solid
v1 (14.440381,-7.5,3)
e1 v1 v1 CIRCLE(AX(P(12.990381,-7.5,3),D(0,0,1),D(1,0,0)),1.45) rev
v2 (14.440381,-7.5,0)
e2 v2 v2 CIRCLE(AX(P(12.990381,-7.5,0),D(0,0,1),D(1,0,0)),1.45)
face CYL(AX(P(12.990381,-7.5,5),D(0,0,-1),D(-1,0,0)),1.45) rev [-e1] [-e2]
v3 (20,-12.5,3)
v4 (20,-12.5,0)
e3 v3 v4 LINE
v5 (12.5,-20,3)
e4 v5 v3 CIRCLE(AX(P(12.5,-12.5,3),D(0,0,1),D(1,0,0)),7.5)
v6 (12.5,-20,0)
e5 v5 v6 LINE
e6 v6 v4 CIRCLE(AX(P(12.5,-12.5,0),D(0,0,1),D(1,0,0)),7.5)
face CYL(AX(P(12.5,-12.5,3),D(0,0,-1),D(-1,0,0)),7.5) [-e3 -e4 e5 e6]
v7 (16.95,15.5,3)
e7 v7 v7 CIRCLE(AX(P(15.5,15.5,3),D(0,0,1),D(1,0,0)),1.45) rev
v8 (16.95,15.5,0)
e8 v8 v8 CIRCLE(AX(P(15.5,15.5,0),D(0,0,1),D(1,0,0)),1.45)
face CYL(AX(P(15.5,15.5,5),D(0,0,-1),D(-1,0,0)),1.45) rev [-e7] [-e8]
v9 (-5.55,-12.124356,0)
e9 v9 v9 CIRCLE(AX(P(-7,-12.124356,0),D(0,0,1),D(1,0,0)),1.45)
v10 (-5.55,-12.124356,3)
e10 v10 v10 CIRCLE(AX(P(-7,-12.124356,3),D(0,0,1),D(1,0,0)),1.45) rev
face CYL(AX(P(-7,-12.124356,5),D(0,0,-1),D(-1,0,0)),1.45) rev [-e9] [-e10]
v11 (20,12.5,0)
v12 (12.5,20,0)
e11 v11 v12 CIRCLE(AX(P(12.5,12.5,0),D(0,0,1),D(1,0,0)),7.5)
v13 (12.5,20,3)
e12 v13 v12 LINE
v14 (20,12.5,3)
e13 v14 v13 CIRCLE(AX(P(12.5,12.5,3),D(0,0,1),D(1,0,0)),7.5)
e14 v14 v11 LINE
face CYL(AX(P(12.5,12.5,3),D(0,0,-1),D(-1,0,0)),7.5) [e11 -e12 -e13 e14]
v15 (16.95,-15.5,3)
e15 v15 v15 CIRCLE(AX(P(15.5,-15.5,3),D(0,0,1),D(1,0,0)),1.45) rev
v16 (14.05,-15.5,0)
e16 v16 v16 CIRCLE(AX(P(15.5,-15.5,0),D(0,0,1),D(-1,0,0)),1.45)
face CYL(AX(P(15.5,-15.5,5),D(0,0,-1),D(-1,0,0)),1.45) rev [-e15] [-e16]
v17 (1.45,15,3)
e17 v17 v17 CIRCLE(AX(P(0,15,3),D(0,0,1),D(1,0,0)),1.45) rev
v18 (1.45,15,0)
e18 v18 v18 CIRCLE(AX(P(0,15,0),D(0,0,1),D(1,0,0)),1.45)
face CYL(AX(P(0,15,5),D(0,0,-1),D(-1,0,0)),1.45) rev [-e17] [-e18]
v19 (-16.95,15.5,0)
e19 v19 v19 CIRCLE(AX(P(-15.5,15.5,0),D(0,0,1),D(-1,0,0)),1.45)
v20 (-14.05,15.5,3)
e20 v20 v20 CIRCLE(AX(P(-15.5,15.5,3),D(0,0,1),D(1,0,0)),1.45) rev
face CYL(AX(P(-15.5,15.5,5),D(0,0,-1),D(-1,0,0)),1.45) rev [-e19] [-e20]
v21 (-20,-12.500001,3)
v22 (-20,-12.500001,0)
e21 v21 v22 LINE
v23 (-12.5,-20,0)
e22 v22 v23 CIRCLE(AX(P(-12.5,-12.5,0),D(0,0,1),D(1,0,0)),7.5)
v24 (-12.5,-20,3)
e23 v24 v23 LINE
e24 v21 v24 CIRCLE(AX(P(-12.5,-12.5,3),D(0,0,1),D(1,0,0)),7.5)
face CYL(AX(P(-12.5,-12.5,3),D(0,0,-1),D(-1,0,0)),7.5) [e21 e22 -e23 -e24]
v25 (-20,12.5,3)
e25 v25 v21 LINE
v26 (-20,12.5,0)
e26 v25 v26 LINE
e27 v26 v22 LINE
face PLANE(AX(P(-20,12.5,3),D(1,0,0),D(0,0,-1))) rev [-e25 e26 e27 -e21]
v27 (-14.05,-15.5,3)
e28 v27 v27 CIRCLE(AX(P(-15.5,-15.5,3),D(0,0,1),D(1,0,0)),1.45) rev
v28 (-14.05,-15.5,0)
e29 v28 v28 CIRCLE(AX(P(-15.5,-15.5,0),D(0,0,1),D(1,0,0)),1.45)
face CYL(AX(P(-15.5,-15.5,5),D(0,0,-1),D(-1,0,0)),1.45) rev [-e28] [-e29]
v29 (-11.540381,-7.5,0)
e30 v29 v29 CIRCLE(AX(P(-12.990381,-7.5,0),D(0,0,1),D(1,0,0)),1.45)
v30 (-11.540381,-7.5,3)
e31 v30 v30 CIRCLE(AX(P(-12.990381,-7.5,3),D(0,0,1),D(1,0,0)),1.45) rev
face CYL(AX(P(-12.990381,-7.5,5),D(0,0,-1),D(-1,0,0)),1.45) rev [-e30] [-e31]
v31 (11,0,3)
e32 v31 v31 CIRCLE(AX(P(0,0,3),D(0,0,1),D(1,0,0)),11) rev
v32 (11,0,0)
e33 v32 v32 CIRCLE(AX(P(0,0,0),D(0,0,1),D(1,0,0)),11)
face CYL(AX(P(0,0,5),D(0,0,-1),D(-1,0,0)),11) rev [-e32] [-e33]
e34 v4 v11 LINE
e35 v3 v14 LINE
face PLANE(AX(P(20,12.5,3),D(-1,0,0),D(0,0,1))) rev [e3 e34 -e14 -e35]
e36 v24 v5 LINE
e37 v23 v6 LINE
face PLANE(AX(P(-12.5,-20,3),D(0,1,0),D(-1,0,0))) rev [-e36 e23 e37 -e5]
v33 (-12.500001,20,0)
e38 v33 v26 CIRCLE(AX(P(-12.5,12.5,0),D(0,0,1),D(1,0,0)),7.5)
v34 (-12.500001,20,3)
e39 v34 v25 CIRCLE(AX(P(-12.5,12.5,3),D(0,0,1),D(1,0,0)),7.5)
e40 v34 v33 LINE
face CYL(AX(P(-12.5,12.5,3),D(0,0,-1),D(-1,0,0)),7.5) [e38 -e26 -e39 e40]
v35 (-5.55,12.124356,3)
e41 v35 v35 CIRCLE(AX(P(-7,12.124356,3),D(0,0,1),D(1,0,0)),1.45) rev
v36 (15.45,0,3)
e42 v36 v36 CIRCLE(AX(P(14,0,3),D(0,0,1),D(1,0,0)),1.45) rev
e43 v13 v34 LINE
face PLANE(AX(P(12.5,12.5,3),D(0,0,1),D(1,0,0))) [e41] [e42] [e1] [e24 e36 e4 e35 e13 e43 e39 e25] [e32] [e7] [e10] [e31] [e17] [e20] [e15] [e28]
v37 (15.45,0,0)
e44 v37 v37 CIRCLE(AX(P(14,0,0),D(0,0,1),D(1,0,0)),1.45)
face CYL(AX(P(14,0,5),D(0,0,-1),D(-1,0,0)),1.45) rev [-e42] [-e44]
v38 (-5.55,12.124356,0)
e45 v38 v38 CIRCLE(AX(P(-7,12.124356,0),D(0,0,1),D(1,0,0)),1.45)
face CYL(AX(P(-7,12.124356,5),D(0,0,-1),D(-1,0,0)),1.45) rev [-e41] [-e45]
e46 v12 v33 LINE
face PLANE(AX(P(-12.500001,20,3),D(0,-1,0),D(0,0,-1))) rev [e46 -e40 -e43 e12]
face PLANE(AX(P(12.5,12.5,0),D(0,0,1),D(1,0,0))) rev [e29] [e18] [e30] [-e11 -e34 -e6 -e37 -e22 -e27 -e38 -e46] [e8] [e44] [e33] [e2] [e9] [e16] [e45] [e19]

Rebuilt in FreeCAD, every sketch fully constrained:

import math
import FreeCAD as App
import Part
import Sketcher

doc = App.newDocument("Part")
body = doc.addObject("PartDesign::Body", "Body")

sketch1 = body.newObject("Sketcher::SketchObject", "Sketch")
sketch1.AttachmentSupport = (doc.getObject("XY_Plane"), [""])
sketch1.MapMode = "FlatFace"
sketch1.addGeometry([
    Part.LineSegment(App.Vector(12, 20, 0), App.Vector(-13, 20, 0)),
    Part.ArcOfCircle(Part.Circle(App.Vector(-12, 12, 0), App.Vector(0, 0, 1), 8), math.radians(90), math.radians(180)),
    Part.LineSegment(App.Vector(-20, 12, 0), App.Vector(-20, -13, 0)),
    Part.ArcOfCircle(Part.Circle(App.Vector(-12, -12, 0), App.Vector(0, 0, 1), 8), math.radians(-180), math.radians(-90)),
    Part.LineSegment(App.Vector(-12, -20, 0), App.Vector(12, -20, 0)),
    Part.ArcOfCircle(Part.Circle(App.Vector(12, -12, 0), App.Vector(0, 0, 1), 8), math.radians(-90), math.radians(0)),
    Part.LineSegment(App.Vector(20, -12, 0), App.Vector(20, 12, 0)),
    Part.ArcOfCircle(Part.Circle(App.Vector(12, 12, 0), App.Vector(0, 0, 1), 8), math.radians(0), math.radians(90)),
], False)
sketch1.addConstraint([
    Sketcher.Constraint("Tangent", 0, 2, 1, 1),
    Sketcher.Constraint("Tangent", 1, 2, 2, 1),
    Sketcher.Constraint("Tangent", 2, 2, 3, 1),
    Sketcher.Constraint("Tangent", 3, 2, 4, 1),
    Sketcher.Constraint("Tangent", 4, 2, 5, 1),
    Sketcher.Constraint("Tangent", 5, 2, 6, 1),
    Sketcher.Constraint("Tangent", 6, 2, 7, 1),
    Sketcher.Constraint("Tangent", 7, 2, 0, 1),
    Sketcher.Constraint("Horizontal", 0),
    Sketcher.Constraint("Vertical", 2),
    Sketcher.Constraint("Horizontal", 4),
    Sketcher.Constraint("Vertical", 6),
    Sketcher.Constraint("Equal", 1, 3),
    Sketcher.Constraint("Equal", 3, 5),
    Sketcher.Constraint("Equal", 5, 7),
    Sketcher.Constraint("Symmetric", 1, 3, 5, 3, -1, 1),
    Sketcher.Constraint("Equal", 4, 2),
    Sketcher.Constraint("Radius", 1, 7.5),
    Sketcher.Constraint("DistanceX", 0, 2, 0, 1, 25.000001),
])
pad1 = body.newObject("PartDesign::Pad", "Pad")
pad1.Profile = sketch1
pad1.Length = 3

sketch2 = body.newObject("Sketcher::SketchObject", "Sketch001")
sketch2.AttachmentSupport = (doc.getObject("XY_Plane"), [""])
sketch2.MapMode = "FlatFace"
sketch2.addGeometry([
    Part.Circle(App.Vector(15.5, 15.5, 0), App.Vector(0, 0, 1), 1.4),
    Part.Circle(App.Vector(-15.5, 15.5, 0), App.Vector(0, 0, 1), 1.4),
    Part.Circle(App.Vector(15.5, -15.5, 0), App.Vector(0, 0, 1), 1.4),
    Part.Circle(App.Vector(-15.5, -15.5, 0), App.Vector(0, 0, 1), 1.4),
    Part.Circle(App.Vector(0, 15, 0), App.Vector(0, 0, 1), 1.4),
    Part.Circle(App.Vector(14, 0, 0), App.Vector(0, 0, 1), 1.4),
    Part.Circle(App.Vector(-7, -12.1, 0), App.Vector(0, 0, 1), 1.4),
    Part.Circle(App.Vector(-13, -7.5, 0), App.Vector(0, 0, 1), 1.4),
    Part.Circle(App.Vector(13, -7.5, 0), App.Vector(0, 0, 1), 1.4),
    Part.Circle(App.Vector(-7, 12.1, 0), App.Vector(0, 0, 1), 1.4),
    Part.Circle(App.Vector(0, 0, 0), App.Vector(0, 0, 1), 11),
], False)
sketch2.addConstraint([
    Sketcher.Constraint("Coincident", 10, 3, -1, 1),
    Sketcher.Constraint("Equal", 0, 1),
    Sketcher.Constraint("Equal", 1, 2),
    Sketcher.Constraint("Equal", 2, 3),
    Sketcher.Constraint("Equal", 3, 4),
    Sketcher.Constraint("Equal", 4, 5),
    Sketcher.Constraint("Equal", 5, 6),
    Sketcher.Constraint("Equal", 6, 7),
    Sketcher.Constraint("Equal", 7, 8),
    Sketcher.Constraint("Equal", 8, 9),
    Sketcher.Constraint("Symmetric", 1, 3, 2, 3, -1, 1),
    Sketcher.Constraint("Symmetric", 0, 3, 3, 3, -1, 1),
    Sketcher.Constraint("Symmetric", 0, 3, 1, 3, -2),
    Sketcher.Constraint("Symmetric", 7, 3, 8, 3, -2),
    Sketcher.Constraint("Symmetric", 6, 3, 9, 3, -1),
    Sketcher.Constraint("PointOnObject", 4, 3, -2),
    Sketcher.Constraint("PointOnObject", 5, 3, -1),
    Sketcher.Constraint("Diameter", 10, 22.0),
    Sketcher.Constraint("Diameter", 0, 2.9),
    Sketcher.Constraint("DistanceY", -1, 1, 4, 3, 15.0),
    Sketcher.Constraint("DistanceX", -1, 1, 5, 3, 14.0),
    Sketcher.Constraint("DistanceX", 6, 3, -1, 1, 7.0),
    Sketcher.Constraint("DistanceX", 1, 3, 0, 3, 31.0),
    Sketcher.Constraint("DistanceY", 2, 3, 0, 3, 31.0),
    Sketcher.Constraint("DistanceY", 3, 3, 7, 3, 8.0),
    Sketcher.Constraint("DistanceX", 7, 3, -1, 1, 12.990381),
    Sketcher.Constraint("DistanceY", 6, 3, -1, 1, 12.124356),
])
pocket1 = body.newObject("PartDesign::Pocket", "Pocket")
pocket1.Profile = sketch2
pocket1.Length = 5
pocket1.Reversed = True

doc.recompute()
